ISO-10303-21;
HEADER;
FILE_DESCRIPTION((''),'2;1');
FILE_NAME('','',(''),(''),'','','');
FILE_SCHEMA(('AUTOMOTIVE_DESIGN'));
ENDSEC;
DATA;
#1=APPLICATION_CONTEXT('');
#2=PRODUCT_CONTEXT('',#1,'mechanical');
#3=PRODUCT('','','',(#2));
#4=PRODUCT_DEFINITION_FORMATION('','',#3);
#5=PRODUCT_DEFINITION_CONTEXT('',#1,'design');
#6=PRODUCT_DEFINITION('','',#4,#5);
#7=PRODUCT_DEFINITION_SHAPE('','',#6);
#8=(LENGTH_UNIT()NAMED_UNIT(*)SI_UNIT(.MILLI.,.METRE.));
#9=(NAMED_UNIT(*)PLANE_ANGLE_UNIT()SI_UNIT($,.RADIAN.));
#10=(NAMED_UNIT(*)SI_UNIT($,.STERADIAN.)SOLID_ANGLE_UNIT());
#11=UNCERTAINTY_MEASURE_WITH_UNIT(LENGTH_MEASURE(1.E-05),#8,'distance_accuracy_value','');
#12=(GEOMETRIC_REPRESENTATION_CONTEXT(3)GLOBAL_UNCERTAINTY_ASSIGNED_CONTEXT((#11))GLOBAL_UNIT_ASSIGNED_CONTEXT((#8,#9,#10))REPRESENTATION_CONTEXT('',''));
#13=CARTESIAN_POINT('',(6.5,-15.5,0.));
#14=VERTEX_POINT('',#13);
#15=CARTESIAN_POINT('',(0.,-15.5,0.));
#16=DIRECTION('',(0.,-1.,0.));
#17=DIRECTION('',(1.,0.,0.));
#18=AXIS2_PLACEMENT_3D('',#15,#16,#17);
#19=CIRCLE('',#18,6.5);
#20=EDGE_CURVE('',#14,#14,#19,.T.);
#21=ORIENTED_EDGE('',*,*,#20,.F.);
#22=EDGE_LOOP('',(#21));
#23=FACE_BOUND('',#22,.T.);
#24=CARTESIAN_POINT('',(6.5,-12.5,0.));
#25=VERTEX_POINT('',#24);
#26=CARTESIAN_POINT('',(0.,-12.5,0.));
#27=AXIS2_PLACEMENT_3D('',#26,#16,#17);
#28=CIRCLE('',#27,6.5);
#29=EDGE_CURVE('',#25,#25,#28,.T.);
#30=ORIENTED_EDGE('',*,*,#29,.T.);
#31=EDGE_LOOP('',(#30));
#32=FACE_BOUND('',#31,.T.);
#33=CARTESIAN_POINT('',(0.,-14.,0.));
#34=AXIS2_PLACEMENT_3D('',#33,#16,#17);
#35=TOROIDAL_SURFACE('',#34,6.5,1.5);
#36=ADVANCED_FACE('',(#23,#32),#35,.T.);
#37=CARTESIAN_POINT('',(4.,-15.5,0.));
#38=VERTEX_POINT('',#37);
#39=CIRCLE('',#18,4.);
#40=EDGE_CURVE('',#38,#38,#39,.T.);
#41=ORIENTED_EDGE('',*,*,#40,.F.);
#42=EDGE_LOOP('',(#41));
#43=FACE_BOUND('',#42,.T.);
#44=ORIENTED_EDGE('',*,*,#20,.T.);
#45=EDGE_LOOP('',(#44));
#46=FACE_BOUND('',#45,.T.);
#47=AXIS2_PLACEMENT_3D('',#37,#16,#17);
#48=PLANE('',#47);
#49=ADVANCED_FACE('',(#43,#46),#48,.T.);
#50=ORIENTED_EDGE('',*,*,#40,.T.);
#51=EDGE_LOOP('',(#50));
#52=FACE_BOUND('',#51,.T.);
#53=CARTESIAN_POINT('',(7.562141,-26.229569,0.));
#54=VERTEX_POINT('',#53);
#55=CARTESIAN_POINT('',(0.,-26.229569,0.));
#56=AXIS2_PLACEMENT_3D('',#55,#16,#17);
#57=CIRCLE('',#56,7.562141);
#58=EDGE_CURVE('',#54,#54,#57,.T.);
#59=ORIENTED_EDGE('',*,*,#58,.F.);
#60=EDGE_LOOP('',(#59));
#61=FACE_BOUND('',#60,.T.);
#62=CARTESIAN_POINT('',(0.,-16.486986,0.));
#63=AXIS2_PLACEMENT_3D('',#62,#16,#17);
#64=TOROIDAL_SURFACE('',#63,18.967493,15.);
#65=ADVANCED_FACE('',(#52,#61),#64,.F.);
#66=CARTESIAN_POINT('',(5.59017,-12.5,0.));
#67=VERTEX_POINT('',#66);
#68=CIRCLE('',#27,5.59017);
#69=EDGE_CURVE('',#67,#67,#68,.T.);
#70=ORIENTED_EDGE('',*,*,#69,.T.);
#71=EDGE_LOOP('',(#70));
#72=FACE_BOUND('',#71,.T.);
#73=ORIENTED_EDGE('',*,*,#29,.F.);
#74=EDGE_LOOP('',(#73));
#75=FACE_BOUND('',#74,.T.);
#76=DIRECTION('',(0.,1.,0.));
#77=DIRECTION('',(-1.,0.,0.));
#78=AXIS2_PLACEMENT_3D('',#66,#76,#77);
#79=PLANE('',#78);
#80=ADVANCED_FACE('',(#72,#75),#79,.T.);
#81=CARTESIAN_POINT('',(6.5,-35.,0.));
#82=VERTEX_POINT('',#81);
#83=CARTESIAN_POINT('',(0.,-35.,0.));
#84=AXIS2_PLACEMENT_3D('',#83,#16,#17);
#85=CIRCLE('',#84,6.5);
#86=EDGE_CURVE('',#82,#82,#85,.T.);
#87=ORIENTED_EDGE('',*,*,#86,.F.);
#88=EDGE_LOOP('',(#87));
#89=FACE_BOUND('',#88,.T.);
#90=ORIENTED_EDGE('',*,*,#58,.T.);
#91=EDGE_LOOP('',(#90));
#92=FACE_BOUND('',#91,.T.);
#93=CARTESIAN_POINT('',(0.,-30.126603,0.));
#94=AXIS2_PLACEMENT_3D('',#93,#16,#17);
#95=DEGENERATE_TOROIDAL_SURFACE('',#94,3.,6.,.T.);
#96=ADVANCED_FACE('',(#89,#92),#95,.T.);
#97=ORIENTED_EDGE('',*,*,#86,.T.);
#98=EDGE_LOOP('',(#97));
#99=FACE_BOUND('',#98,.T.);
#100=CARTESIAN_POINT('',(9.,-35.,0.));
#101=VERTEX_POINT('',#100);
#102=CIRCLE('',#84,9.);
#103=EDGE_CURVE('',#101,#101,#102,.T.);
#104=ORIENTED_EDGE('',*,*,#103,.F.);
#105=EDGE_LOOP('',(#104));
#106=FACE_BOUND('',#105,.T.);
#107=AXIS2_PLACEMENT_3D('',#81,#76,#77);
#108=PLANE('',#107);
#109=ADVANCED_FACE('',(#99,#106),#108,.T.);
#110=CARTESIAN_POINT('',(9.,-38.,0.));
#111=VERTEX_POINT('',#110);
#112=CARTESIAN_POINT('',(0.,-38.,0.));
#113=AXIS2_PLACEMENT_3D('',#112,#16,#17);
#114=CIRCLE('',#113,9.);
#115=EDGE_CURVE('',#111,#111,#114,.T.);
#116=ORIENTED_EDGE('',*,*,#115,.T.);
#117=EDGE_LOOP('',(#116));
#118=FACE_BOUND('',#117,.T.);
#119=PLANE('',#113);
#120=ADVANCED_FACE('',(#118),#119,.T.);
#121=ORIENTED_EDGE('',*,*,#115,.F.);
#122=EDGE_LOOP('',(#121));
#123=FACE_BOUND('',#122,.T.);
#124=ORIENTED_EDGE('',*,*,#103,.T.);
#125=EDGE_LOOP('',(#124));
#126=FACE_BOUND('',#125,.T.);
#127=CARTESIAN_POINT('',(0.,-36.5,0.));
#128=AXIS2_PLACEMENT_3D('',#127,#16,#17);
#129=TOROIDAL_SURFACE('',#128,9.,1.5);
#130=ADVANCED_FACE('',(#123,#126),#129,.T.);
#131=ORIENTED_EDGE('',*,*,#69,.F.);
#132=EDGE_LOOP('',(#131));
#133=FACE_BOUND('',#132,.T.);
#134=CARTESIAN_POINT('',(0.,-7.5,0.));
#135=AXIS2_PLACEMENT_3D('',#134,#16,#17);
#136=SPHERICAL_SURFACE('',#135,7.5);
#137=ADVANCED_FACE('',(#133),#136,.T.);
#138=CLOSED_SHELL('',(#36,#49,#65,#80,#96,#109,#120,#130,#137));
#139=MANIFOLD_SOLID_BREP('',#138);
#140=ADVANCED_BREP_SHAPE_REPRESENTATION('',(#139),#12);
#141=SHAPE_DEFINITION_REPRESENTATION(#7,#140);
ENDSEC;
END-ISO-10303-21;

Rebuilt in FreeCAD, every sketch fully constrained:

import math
import FreeCAD as App
import Part
import Sketcher

V = App.Vector

doc = App.newDocument("Part")
body = doc.addObject("PartDesign::Body", "Body")

sketch1 = doc.addObject("Sketcher::SketchObject", "Sketch")
body.addObject(sketch1)
sketch1.AttachmentSupport = (doc.XY_Plane, [""])
sketch1.MapMode = "FlatFace"
sketch1.addGeometry([
    Part.LineSegment(V(4, -15.5, 0), V(6.5, -15.5, 0)),
    Part.ArcOfCircle(Part.Circle(V(6.5, -14, 0), V(0, 0, 1), 1.5), math.radians(-90), math.radians(90)),
    Part.LineSegment(V(6.5, -12.5, 0), V(5.59017, -12.5, 0)),
    Part.ArcOfCircle(Part.Circle(V(0, -7.5, 0), V(0, 0, 1), 7.5), math.radians(-41.810315), math.radians(90)),
    Part.LineSegment(V(0, 0, 0), V(0, -38, 0)),
    Part.LineSegment(V(0, -38, 0), V(9, -38, 0)),
    Part.ArcOfCircle(Part.Circle(V(9, -36.5, 0), V(0, 0, 1), 1.5), math.radians(-90), math.radians(90)),
    Part.LineSegment(V(9, -35, 0), V(6.5, -35, 0)),
    Part.ArcOfCircle(Part.Circle(V(3, -30.126603, 0), V(0, 0, 1), 6), math.radians(-54.314665), math.radians(40.504335)),
    Part.ArcOfCircle(Part.Circle(V(18.967493, -16.486986, 0), V(0, 0, 1), 15), math.radians(176.227266), math.radians(220.504335)),
], False)
sketch1.addConstraint([
    Sketcher.Constraint("Tangent", 0, 2, 1, 1),
    Sketcher.Constraint("Tangent", 1, 2, 2, 1),
    Sketcher.Constraint("Coincident", 2, 2, 3, 1),
    Sketcher.Constraint("Coincident", 3, 2, 4, 1),
    Sketcher.Constraint("Coincident", 4, 2, 5, 1),
    Sketcher.Constraint("Tangent", 5, 2, 6, 1),
    Sketcher.Constraint("Tangent", 6, 2, 7, 1),
    Sketcher.Constraint("Coincident", 7, 2, 8, 1),
    Sketcher.Constraint("Tangent", 8, 2, 9, 2),
    Sketcher.Constraint("Coincident", 9, 1, 0, 1),
    Sketcher.Constraint("Horizontal", 0),
    Sketcher.Constraint("Horizontal", 2),
    Sketcher.Constraint("Vertical", 4),
    Sketcher.Constraint("Horizontal", 5),
    Sketcher.Constraint("Horizontal", 7),
    Sketcher.Constraint("Coincident", 3, 2, -1, 1),
    Sketcher.Constraint("Equal", 1, 6),
    Sketcher.Constraint("PointOnObject", 3, 3, -2),
    Sketcher.Constraint("Vertical", 1, 2, 7, 2),
    Sketcher.Constraint("Equal", 0, 7),
    Sketcher.Constraint("Radius", 8, 6.0),
    Sketcher.Constraint("Radius", 9, 15.0),
    Sketcher.Constraint("Radius", 1, 1.5),
    Sketcher.Constraint("Radius", 3, 7.5),
    Sketcher.Constraint("DistanceX", 5, 1, 5, 2, 9.0),
    Sketcher.Constraint("DistanceY", 4, 2, 4, 1, 38.0),
    Sketcher.Constraint("DistanceX", 0, 1, 0, 2, 2.5),
    Sketcher.Constraint("DistanceY", 1, 3, -1, 1, 14.0),
    Sketcher.Constraint("DistanceX", -1, 1, 8, 3, 3.0),
])
revolution = doc.addObject("PartDesign::Revolution", "Revolution")
body.addObject(revolution)
revolution.Profile = sketch1
revolution.ReferenceAxis = (sketch1, ["V_Axis"])
revolution.Angle = 360

doc.recompute()
